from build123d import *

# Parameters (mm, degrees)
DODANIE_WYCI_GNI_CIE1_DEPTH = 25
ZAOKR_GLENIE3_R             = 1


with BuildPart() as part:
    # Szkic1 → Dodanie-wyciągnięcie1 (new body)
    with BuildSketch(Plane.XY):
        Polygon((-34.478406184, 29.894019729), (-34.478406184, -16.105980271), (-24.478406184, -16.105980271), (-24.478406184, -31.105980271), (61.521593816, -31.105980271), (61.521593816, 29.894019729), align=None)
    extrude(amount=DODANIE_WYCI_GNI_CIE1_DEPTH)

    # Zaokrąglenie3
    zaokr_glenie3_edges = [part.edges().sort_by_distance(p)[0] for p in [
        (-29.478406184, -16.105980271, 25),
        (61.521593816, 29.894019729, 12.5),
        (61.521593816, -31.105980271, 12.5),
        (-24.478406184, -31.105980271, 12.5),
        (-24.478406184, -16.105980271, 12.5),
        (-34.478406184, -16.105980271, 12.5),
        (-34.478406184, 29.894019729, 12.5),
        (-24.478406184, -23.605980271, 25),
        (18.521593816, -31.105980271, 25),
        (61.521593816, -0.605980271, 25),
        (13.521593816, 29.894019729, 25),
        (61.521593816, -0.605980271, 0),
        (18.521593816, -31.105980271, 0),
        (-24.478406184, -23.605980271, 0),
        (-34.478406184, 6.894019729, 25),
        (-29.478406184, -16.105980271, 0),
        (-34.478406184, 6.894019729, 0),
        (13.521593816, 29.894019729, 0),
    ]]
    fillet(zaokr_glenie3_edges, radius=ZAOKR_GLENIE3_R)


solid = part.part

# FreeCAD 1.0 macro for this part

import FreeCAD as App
import Part
import Sketcher

V = App.Vector
Q = App.Units.Quantity

doc = App.newDocument("Part")
body = doc.addObject("PartDesign::Body", "Body")

# Sketch on XY plane
sketch1 = body.newObject("Sketcher::SketchObject", "Sketch")
sketch1.AttachmentSupport = (doc.getObject("XY_Plane"), [""])
sketch1.MapMode = "FlatFace"
sketch1.addGeometry(Part.LineSegment(V(-34, 30, 0), V(-34, -16, 0)), False)
sketch1.addGeometry(Part.LineSegment(V(-34, -16, 0), V(-24, -16, 0)), False)
sketch1.addGeometry(Part.LineSegment(V(-24, -16, 0), V(-24, -31, 0)), False)
sketch1.addGeometry(Part.LineSegment(V(-24, -31, 0), V(62, -31, 0)), False)
sketch1.addGeometry(Part.LineSegment(V(62, -31, 0), V(62, 30, 0)), False)
sketch1.addGeometry(Part.LineSegment(V(62, 30, 0), V(-34, 30, 0)), False)
sketch1.addConstraint(Sketcher.Constraint("Coincident", 0, 2, 1, 1))
sketch1.addConstraint(Sketcher.Constraint("Coincident", 1, 2, 2, 1))
sketch1.addConstraint(Sketcher.Constraint("Coincident", 2, 2, 3, 1))
sketch1.addConstraint(Sketcher.Constraint("Coincident", 3, 2, 4, 1))
sketch1.addConstraint(Sketcher.Constraint("Coincident", 4, 2, 5, 1))
sketch1.addConstraint(Sketcher.Constraint("Coincident", 5, 2, 0, 1))
sketch1.addConstraint(Sketcher.Constraint("Vertical", 0))
sketch1.addConstraint(Sketcher.Constraint("Horizontal", 1))
sketch1.addConstraint(Sketcher.Constraint("Vertical", 2))
sketch1.addConstraint(Sketcher.Constraint("Horizontal", 3))
sketch1.addConstraint(Sketcher.Constraint("Vertical", 4))
sketch1.addConstraint(Sketcher.Constraint("Horizontal", 5))
sketch1.addConstraint(Sketcher.Constraint("DistanceX", 1, 1, 1, 2, Q("10 mm")))
sketch1.addConstraint(Sketcher.Constraint("DistanceX", 3, 1, 3, 2, Q("86 mm")))
sketch1.addConstraint(Sketcher.Constraint("DistanceY", 0, 2, 0, 1, Q("46 mm")))
sketch1.addConstraint(Sketcher.Constraint("DistanceY", 2, 2, 2, 1, Q("15 mm")))
sketch1.addConstraint(Sketcher.Constraint("DistanceY", 0, 2, -1, 1, Q("16.10598 mm")))
sketch1.addConstraint(Sketcher.Constraint("DistanceX", 0, 2, -1, 1, Q("34.478406 mm")))
pad1 = body.newObject("PartDesign::Pad", "Pad")
pad1.Profile = sketch1
pad1.Length = 25
doc.recompute()

fillet = body.newObject("PartDesign::Fillet", "Fillet")
fillet.Base = (pad1, ["Edge1"])
fillet.UseAllEdges = True
fillet.Radius = 1

doc.recompute()
